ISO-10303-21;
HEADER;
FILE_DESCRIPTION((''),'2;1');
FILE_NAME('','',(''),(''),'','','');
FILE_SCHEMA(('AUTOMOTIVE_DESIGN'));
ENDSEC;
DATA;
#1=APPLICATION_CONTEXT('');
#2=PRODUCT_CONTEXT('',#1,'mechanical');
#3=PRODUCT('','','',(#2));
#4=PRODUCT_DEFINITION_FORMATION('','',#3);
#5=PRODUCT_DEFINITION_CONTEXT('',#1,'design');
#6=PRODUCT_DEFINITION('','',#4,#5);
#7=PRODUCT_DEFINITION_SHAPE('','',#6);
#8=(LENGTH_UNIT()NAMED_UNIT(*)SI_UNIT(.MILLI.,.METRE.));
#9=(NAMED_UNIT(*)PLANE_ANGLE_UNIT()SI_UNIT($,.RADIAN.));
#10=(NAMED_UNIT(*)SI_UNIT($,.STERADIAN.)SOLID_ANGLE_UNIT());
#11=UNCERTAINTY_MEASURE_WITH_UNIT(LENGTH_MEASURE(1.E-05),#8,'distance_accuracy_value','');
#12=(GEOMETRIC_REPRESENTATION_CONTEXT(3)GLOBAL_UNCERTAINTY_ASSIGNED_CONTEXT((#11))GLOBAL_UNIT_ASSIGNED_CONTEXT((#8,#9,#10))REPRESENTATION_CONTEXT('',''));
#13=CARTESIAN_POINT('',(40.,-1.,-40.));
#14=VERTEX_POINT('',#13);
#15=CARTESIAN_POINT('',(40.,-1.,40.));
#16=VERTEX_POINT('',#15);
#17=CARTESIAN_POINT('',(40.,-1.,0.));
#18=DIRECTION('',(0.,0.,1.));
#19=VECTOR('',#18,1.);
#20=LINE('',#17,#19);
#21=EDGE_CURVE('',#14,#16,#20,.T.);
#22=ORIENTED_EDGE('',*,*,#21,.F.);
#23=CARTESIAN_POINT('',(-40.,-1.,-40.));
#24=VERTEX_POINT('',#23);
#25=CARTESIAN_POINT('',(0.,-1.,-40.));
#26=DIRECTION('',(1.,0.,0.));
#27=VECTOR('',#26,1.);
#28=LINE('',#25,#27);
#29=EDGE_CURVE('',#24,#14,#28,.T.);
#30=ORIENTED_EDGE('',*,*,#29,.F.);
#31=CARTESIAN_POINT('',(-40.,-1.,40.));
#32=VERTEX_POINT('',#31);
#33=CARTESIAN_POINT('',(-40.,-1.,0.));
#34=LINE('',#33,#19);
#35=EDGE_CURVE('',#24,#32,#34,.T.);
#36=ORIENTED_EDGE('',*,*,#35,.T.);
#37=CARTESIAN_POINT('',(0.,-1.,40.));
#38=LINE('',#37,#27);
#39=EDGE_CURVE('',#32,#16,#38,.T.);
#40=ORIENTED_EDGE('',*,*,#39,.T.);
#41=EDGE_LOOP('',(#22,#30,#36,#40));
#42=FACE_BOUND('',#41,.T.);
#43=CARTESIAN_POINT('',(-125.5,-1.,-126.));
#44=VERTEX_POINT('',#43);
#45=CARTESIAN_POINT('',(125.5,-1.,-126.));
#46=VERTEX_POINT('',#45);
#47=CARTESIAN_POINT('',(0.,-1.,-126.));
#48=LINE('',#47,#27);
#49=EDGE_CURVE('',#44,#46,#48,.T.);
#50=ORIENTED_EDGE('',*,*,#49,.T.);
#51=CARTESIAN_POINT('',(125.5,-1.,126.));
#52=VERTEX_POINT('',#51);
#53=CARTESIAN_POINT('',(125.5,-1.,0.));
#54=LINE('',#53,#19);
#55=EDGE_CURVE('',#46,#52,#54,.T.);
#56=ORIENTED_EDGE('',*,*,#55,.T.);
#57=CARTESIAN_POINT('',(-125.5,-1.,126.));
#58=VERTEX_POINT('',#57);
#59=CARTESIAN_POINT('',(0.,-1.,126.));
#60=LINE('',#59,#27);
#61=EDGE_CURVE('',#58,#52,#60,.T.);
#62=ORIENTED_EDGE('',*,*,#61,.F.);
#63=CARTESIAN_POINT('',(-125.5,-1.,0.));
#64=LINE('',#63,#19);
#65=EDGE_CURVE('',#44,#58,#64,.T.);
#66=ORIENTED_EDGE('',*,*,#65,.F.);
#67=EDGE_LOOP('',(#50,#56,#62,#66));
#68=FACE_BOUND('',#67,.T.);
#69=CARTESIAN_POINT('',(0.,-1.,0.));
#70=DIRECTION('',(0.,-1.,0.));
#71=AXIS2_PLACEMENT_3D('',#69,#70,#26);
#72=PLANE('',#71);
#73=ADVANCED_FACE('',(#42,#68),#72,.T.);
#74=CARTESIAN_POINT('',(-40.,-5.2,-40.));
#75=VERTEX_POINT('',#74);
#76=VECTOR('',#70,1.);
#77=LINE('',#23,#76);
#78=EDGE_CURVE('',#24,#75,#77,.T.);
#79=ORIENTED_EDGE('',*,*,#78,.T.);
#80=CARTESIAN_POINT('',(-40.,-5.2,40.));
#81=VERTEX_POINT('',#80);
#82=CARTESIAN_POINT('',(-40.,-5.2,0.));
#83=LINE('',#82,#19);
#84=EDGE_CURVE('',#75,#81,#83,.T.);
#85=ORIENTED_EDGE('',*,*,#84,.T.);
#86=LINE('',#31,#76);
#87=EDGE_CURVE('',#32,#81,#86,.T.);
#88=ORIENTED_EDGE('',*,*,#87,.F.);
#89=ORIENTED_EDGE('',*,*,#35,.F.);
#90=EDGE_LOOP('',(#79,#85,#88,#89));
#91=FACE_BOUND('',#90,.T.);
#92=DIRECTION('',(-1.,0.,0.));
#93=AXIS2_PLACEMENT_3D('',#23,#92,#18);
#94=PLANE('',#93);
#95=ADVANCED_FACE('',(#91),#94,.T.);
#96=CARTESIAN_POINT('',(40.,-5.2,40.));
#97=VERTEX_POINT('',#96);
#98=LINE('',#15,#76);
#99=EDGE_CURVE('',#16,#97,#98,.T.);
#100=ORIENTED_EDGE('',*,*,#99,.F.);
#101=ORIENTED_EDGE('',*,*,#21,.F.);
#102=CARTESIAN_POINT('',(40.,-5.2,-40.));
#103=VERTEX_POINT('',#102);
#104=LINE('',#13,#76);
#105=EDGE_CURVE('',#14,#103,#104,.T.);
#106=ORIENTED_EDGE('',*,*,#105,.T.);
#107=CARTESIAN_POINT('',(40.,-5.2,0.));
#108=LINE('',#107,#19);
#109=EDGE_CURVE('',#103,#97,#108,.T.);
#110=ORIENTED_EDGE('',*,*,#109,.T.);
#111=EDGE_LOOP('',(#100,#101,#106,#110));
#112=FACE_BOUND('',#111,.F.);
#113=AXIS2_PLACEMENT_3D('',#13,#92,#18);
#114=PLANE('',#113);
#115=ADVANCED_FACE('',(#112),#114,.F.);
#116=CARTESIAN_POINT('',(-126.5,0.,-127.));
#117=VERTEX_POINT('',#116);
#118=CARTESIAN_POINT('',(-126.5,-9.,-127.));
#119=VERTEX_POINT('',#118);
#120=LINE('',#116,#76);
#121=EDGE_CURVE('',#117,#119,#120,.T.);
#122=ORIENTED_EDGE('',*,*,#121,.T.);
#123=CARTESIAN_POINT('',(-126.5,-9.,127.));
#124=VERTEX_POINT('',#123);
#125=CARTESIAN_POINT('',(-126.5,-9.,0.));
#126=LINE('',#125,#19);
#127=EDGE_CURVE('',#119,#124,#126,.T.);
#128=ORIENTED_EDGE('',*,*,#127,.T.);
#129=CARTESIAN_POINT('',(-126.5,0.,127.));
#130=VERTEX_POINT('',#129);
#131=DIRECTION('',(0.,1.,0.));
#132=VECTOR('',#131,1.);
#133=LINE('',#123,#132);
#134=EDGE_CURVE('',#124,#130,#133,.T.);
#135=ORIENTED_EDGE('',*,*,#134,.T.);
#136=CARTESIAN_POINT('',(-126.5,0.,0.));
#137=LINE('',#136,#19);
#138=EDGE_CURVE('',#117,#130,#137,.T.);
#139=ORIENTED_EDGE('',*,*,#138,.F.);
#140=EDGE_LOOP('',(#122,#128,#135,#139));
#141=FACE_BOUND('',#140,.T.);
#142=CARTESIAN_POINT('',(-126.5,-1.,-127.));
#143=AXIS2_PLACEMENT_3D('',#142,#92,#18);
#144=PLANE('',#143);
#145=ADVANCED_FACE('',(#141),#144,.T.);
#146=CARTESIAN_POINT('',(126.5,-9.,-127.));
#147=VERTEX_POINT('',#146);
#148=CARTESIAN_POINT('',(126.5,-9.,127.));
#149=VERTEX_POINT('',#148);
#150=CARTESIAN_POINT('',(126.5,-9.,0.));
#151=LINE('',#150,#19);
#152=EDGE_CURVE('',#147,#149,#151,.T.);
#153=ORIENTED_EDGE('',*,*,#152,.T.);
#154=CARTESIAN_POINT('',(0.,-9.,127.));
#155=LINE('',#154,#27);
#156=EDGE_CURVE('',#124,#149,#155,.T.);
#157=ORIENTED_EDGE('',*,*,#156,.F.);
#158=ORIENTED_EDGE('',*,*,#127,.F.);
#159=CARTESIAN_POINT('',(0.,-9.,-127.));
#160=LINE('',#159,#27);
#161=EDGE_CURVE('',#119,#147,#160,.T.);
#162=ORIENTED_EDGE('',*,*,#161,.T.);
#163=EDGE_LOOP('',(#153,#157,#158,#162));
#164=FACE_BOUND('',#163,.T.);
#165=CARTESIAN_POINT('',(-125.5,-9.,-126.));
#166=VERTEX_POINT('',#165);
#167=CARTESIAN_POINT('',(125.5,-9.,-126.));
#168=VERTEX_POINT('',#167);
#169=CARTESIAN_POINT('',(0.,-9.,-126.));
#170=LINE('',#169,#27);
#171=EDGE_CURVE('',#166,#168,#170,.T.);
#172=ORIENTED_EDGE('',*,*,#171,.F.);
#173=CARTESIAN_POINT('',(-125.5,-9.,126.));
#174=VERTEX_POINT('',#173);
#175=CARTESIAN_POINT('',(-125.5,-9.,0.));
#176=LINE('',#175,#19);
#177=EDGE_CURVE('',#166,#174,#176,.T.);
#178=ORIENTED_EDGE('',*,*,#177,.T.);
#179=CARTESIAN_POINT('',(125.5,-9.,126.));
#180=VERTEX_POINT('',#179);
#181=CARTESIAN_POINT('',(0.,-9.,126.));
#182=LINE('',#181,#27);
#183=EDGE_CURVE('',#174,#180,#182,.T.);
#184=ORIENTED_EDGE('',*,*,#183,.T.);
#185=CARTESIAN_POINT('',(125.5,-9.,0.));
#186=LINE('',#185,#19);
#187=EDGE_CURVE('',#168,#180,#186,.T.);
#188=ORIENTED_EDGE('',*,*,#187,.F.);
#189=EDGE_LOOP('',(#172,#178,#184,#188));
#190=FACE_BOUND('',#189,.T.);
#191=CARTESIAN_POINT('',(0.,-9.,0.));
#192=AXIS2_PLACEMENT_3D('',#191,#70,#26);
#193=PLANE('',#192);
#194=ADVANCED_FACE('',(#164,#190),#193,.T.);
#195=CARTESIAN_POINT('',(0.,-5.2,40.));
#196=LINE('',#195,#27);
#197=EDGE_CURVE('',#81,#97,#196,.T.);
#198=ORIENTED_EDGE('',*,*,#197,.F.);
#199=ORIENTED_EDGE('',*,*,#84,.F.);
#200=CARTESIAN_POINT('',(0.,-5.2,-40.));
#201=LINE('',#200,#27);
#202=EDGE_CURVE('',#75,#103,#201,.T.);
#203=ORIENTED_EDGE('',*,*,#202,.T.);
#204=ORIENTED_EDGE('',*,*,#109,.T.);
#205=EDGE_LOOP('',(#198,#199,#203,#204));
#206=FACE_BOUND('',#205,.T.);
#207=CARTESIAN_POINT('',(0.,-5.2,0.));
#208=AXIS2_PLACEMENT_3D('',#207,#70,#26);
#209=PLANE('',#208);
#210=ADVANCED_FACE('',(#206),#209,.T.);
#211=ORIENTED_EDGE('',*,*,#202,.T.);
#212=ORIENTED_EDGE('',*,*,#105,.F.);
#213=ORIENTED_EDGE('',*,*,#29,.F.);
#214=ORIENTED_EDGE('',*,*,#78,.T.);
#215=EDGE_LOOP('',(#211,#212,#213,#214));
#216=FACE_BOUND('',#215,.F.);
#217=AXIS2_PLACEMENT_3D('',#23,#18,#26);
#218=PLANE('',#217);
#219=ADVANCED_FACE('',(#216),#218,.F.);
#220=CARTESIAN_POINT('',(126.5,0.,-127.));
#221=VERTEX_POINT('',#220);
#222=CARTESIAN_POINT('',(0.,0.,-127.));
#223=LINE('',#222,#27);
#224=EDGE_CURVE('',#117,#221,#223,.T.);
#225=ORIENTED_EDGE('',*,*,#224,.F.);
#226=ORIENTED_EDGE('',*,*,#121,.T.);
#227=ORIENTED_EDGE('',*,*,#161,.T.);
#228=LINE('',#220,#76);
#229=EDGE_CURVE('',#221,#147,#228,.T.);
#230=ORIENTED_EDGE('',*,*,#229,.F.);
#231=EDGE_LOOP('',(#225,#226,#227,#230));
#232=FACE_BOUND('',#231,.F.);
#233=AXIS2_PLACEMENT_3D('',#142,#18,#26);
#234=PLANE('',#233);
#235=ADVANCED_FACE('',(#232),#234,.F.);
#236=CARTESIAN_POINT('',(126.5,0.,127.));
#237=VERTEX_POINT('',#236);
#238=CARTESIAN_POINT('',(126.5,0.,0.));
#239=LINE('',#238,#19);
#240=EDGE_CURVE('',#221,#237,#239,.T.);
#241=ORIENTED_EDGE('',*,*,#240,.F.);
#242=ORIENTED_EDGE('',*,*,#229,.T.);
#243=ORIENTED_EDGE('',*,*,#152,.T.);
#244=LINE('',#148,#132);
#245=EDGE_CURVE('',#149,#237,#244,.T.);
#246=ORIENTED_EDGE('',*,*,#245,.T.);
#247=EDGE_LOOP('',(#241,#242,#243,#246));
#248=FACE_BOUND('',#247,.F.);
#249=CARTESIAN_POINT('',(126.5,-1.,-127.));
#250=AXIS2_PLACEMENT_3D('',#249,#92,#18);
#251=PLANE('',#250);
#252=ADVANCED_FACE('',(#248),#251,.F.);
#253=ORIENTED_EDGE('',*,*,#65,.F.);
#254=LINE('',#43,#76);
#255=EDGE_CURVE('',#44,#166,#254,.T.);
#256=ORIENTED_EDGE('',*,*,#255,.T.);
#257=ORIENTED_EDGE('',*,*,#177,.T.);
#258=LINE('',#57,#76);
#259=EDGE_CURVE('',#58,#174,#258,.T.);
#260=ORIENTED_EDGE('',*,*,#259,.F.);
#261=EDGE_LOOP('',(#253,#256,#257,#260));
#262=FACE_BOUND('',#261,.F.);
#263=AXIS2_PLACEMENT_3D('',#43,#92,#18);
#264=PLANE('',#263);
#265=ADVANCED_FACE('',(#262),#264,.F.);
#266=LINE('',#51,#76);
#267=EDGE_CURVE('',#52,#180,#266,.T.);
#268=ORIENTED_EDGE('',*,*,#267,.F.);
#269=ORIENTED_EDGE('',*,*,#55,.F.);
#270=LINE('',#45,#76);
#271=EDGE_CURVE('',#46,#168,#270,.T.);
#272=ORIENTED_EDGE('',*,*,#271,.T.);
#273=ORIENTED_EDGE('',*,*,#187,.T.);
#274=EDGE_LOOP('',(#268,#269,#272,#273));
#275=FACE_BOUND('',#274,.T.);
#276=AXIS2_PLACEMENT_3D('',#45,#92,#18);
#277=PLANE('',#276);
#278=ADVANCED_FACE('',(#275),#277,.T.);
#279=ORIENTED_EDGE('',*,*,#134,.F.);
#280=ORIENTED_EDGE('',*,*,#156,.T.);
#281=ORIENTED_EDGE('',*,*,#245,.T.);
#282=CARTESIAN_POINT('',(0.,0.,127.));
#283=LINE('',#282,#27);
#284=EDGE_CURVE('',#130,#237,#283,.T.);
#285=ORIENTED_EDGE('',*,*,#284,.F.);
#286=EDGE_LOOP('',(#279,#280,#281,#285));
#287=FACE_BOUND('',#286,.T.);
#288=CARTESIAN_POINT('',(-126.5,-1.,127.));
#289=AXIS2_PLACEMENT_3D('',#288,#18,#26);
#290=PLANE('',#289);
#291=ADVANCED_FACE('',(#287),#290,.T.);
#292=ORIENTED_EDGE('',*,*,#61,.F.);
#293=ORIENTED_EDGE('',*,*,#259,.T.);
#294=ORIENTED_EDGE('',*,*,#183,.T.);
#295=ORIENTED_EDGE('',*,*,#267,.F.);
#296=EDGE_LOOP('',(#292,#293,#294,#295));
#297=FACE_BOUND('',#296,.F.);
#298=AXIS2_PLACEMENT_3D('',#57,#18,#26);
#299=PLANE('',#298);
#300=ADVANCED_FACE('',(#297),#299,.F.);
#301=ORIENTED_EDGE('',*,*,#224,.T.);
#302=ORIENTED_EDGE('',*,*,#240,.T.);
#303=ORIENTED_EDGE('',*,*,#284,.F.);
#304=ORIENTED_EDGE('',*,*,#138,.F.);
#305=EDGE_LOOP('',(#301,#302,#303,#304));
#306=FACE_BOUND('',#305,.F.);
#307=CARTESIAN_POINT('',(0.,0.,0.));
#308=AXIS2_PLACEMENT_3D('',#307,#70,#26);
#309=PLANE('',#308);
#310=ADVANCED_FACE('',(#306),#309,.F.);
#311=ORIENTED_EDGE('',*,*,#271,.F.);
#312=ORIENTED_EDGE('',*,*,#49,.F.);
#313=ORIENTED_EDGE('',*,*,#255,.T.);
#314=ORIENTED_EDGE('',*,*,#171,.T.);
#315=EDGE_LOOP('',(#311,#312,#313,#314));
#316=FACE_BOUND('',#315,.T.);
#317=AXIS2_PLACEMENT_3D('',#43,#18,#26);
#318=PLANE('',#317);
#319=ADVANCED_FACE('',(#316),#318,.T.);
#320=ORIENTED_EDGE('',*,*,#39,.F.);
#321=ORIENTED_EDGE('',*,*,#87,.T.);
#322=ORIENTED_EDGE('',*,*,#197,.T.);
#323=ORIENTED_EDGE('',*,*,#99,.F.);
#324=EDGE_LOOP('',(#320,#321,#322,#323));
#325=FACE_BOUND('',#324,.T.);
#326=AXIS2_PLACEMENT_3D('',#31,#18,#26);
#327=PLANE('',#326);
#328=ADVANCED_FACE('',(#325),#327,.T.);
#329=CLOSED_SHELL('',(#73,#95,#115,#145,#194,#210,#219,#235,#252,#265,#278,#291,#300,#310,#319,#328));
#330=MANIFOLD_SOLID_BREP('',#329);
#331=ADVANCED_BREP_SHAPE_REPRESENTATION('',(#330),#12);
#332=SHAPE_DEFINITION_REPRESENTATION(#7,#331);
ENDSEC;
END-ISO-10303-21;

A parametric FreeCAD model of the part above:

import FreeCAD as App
import Part
import Sketcher
Q = App.Units.Quantity

doc = App.newDocument("Part")
params = doc.addObject("Spreadsheet::Sheet", "Params")
for row, (alias, value) in enumerate([
    ("sketch1_width", "253 mm"),
    ("sketch1_height", "254 mm"),
    ("pad1_length", "1 mm"),
    ("sketch2_width", "253 mm"),
    ("sketch2_width2", "251 mm"),
    ("sketch2_height", "254 mm"),
    ("sketch2_height2", "252 mm"),
    ("pad2_length", "8 mm"),
    ("sketch3_width", "80 mm"),
    ("pad3_length", "4.2 mm"),
], start=1):
    params.set(f"A{row}", alias)
    params.set(f"B{row}", "=" + value)
    params.setAlias(f"B{row}", alias)

body = doc.addObject("PartDesign::Body", "Body")

sketch1 = doc.addObject("Sketcher::SketchObject", "Sketch")
body.addObject(sketch1)
sketch1.AttachmentSupport = (doc.XZ_Plane, [""])
sketch1.MapMode = "FlatFace"
sketch1.addGeometry([
    Part.LineSegment(App.Vector(-126, 127, 0), App.Vector(-126, -127, 0)),
    Part.LineSegment(App.Vector(-126, -127, 0), App.Vector(126, -127, 0)),
    Part.LineSegment(App.Vector(126, -127, 0), App.Vector(126, 127, 0)),
    Part.LineSegment(App.Vector(126, 127, 0), App.Vector(-126, 127, 0)),
], False)
sketch1.addConstraint([
    Sketcher.Constraint("Coincident", 0, 2, 1, 1),
    Sketcher.Constraint("Coincident", 1, 2, 2, 1),
    Sketcher.Constraint("Coincident", 2, 2, 3, 1),
    Sketcher.Constraint("Coincident", 3, 2, 0, 1),
    Sketcher.Constraint("Vertical", 0),
    Sketcher.Constraint("Horizontal", 1),
    Sketcher.Constraint("Vertical", 2),
    Sketcher.Constraint("Horizontal", 3),
    Sketcher.Constraint("Symmetric", 0, 2, 2, 2, -1, 1),
    Sketcher.Constraint("DistanceX", 1, 1, 1, 2, Q("253 mm")),
    Sketcher.Constraint("DistanceY", 0, 2, 0, 1, Q("254 mm")),
])
sketch1.setExpression("Constraints[9]", "Params.sketch1_width")
sketch1.setExpression("Constraints[10]", "Params.sketch1_height")
pad1 = doc.addObject("PartDesign::Pad", "Pad")
body.addObject(pad1)
pad1.Profile = sketch1
pad1.setExpression("Length", "Params.pad1_length")

sketch2 = doc.addObject("Sketcher::SketchObject", "Sketch001")
body.addObject(sketch2)
sketch2.AttachmentSupport = (doc.XZ_Plane, [""])
sketch2.MapMode = "FlatFace"
sketch2.AttachmentOffset = App.Placement(App.Vector(0, 0, 1), App.Rotation())
sketch2.addGeometry([
    Part.LineSegment(App.Vector(-126, 127, 0), App.Vector(-126, -127, 0)),
    Part.LineSegment(App.Vector(-126, -127, 0), App.Vector(126, -127, 0)),
    Part.LineSegment(App.Vector(126, -127, 0), App.Vector(126, 127, 0)),
    Part.LineSegment(App.Vector(126, 127, 0), App.Vector(-126, 127, 0)),
    Part.LineSegment(App.Vector(126, -126, 0), App.Vector(-126, -126, 0)),
    Part.LineSegment(App.Vector(-126, -126, 0), App.Vector(-126, 126, 0)),
    Part.LineSegment(App.Vector(-126, 126, 0), App.Vector(126, 126, 0)),
    Part.LineSegment(App.Vector(126, 126, 0), App.Vector(126, -126, 0)),
], False)
sketch2.addConstraint([
    Sketcher.Constraint("Coincident", 0, 2, 1, 1),
    Sketcher.Constraint("Coincident", 1, 2, 2, 1),
    Sketcher.Constraint("Coincident", 2, 2, 3, 1),
    Sketcher.Constraint("Coincident", 3, 2, 0, 1),
    Sketcher.Constraint("Coincident", 4, 2, 5, 1),
    Sketcher.Constraint("Coincident", 5, 2, 6, 1),
    Sketcher.Constraint("Coincident", 6, 2, 7, 1),
    Sketcher.Constraint("Coincident", 7, 2, 4, 1),
    Sketcher.Constraint("Vertical", 0),
    Sketcher.Constraint("Horizontal", 1),
    Sketcher.Constraint("Vertical", 2),
    Sketcher.Constraint("Horizontal", 3),
    Sketcher.Constraint("Horizontal", 4),
    Sketcher.Constraint("Vertical", 5),
    Sketcher.Constraint("Horizontal", 6),
    Sketcher.Constraint("Vertical", 7),
    Sketcher.Constraint("Symmetric", 0, 2, 2, 2, -1, 1),
    Sketcher.Constraint("Symmetric", 4, 2, 6, 2, -1, 1),
    Sketcher.Constraint("DistanceX", 1, 1, 1, 2, Q("253 mm")),
    Sketcher.Constraint("DistanceX", 4, 2, 4, 1, Q("251 mm")),
    Sketcher.Constraint("DistanceY", 0, 2, 0, 1, Q("254 mm")),
    Sketcher.Constraint("DistanceY", 5, 1, 5, 2, Q("252 mm")),
])
sketch2.setExpression("Constraints[18]", "Params.sketch2_width")
sketch2.setExpression("Constraints[19]", "Params.sketch2_width2")
sketch2.setExpression("Constraints[20]", "Params.sketch2_height")
sketch2.setExpression("Constraints[21]", "Params.sketch2_height2")
pad2 = doc.addObject("PartDesign::Pad", "Pad001")
body.addObject(pad2)
pad2.Profile = sketch2
pad2.setExpression("Length", "Params.pad2_length")

sketch3 = doc.addObject("Sketcher::SketchObject", "Sketch002")
body.addObject(sketch3)
sketch3.AttachmentSupport = (doc.XZ_Plane, [""])
sketch3.MapMode = "FlatFace"
sketch3.AttachmentOffset = App.Placement(App.Vector(0, 0, 1), App.Rotation())
sketch3.addGeometry([
    Part.LineSegment(App.Vector(-40, 40, 0), App.Vector(-40, -40, 0)),
    Part.LineSegment(App.Vector(-40, -40, 0), App.Vector(40, -40, 0)),
    Part.LineSegment(App.Vector(40, -40, 0), App.Vector(40, 40, 0)),
    Part.LineSegment(App.Vector(40, 40, 0), App.Vector(-40, 40, 0)),
], False)
sketch3.addConstraint([
    Sketcher.Constraint("Coincident", 0, 2, 1, 1),
    Sketcher.Constraint("Coincident", 1, 2, 2, 1),
    Sketcher.Constraint("Coincident", 2, 2, 3, 1),
    Sketcher.Constraint("Coincident", 3, 2, 0, 1),
    Sketcher.Constraint("Vertical", 0),
    Sketcher.Constraint("Horizontal", 1),
    Sketcher.Constraint("Vertical", 2),
    Sketcher.Constraint("Horizontal", 3),
    Sketcher.Constraint("Symmetric", 0, 2, 2, 2, -1, 1),
    Sketcher.Constraint("Equal", 3, 0),
    Sketcher.Constraint("DistanceX", 1, 1, 1, 2, Q("80 mm")),
])
sketch3.setExpression("Constraints[10]", "Params.sketch3_width")
pad3 = doc.addObject("PartDesign::Pad", "Pad002")
body.addObject(pad3)
pad3.Profile = sketch3
pad3.setExpression("Length", "Params.pad3_length")

doc.recompute()
